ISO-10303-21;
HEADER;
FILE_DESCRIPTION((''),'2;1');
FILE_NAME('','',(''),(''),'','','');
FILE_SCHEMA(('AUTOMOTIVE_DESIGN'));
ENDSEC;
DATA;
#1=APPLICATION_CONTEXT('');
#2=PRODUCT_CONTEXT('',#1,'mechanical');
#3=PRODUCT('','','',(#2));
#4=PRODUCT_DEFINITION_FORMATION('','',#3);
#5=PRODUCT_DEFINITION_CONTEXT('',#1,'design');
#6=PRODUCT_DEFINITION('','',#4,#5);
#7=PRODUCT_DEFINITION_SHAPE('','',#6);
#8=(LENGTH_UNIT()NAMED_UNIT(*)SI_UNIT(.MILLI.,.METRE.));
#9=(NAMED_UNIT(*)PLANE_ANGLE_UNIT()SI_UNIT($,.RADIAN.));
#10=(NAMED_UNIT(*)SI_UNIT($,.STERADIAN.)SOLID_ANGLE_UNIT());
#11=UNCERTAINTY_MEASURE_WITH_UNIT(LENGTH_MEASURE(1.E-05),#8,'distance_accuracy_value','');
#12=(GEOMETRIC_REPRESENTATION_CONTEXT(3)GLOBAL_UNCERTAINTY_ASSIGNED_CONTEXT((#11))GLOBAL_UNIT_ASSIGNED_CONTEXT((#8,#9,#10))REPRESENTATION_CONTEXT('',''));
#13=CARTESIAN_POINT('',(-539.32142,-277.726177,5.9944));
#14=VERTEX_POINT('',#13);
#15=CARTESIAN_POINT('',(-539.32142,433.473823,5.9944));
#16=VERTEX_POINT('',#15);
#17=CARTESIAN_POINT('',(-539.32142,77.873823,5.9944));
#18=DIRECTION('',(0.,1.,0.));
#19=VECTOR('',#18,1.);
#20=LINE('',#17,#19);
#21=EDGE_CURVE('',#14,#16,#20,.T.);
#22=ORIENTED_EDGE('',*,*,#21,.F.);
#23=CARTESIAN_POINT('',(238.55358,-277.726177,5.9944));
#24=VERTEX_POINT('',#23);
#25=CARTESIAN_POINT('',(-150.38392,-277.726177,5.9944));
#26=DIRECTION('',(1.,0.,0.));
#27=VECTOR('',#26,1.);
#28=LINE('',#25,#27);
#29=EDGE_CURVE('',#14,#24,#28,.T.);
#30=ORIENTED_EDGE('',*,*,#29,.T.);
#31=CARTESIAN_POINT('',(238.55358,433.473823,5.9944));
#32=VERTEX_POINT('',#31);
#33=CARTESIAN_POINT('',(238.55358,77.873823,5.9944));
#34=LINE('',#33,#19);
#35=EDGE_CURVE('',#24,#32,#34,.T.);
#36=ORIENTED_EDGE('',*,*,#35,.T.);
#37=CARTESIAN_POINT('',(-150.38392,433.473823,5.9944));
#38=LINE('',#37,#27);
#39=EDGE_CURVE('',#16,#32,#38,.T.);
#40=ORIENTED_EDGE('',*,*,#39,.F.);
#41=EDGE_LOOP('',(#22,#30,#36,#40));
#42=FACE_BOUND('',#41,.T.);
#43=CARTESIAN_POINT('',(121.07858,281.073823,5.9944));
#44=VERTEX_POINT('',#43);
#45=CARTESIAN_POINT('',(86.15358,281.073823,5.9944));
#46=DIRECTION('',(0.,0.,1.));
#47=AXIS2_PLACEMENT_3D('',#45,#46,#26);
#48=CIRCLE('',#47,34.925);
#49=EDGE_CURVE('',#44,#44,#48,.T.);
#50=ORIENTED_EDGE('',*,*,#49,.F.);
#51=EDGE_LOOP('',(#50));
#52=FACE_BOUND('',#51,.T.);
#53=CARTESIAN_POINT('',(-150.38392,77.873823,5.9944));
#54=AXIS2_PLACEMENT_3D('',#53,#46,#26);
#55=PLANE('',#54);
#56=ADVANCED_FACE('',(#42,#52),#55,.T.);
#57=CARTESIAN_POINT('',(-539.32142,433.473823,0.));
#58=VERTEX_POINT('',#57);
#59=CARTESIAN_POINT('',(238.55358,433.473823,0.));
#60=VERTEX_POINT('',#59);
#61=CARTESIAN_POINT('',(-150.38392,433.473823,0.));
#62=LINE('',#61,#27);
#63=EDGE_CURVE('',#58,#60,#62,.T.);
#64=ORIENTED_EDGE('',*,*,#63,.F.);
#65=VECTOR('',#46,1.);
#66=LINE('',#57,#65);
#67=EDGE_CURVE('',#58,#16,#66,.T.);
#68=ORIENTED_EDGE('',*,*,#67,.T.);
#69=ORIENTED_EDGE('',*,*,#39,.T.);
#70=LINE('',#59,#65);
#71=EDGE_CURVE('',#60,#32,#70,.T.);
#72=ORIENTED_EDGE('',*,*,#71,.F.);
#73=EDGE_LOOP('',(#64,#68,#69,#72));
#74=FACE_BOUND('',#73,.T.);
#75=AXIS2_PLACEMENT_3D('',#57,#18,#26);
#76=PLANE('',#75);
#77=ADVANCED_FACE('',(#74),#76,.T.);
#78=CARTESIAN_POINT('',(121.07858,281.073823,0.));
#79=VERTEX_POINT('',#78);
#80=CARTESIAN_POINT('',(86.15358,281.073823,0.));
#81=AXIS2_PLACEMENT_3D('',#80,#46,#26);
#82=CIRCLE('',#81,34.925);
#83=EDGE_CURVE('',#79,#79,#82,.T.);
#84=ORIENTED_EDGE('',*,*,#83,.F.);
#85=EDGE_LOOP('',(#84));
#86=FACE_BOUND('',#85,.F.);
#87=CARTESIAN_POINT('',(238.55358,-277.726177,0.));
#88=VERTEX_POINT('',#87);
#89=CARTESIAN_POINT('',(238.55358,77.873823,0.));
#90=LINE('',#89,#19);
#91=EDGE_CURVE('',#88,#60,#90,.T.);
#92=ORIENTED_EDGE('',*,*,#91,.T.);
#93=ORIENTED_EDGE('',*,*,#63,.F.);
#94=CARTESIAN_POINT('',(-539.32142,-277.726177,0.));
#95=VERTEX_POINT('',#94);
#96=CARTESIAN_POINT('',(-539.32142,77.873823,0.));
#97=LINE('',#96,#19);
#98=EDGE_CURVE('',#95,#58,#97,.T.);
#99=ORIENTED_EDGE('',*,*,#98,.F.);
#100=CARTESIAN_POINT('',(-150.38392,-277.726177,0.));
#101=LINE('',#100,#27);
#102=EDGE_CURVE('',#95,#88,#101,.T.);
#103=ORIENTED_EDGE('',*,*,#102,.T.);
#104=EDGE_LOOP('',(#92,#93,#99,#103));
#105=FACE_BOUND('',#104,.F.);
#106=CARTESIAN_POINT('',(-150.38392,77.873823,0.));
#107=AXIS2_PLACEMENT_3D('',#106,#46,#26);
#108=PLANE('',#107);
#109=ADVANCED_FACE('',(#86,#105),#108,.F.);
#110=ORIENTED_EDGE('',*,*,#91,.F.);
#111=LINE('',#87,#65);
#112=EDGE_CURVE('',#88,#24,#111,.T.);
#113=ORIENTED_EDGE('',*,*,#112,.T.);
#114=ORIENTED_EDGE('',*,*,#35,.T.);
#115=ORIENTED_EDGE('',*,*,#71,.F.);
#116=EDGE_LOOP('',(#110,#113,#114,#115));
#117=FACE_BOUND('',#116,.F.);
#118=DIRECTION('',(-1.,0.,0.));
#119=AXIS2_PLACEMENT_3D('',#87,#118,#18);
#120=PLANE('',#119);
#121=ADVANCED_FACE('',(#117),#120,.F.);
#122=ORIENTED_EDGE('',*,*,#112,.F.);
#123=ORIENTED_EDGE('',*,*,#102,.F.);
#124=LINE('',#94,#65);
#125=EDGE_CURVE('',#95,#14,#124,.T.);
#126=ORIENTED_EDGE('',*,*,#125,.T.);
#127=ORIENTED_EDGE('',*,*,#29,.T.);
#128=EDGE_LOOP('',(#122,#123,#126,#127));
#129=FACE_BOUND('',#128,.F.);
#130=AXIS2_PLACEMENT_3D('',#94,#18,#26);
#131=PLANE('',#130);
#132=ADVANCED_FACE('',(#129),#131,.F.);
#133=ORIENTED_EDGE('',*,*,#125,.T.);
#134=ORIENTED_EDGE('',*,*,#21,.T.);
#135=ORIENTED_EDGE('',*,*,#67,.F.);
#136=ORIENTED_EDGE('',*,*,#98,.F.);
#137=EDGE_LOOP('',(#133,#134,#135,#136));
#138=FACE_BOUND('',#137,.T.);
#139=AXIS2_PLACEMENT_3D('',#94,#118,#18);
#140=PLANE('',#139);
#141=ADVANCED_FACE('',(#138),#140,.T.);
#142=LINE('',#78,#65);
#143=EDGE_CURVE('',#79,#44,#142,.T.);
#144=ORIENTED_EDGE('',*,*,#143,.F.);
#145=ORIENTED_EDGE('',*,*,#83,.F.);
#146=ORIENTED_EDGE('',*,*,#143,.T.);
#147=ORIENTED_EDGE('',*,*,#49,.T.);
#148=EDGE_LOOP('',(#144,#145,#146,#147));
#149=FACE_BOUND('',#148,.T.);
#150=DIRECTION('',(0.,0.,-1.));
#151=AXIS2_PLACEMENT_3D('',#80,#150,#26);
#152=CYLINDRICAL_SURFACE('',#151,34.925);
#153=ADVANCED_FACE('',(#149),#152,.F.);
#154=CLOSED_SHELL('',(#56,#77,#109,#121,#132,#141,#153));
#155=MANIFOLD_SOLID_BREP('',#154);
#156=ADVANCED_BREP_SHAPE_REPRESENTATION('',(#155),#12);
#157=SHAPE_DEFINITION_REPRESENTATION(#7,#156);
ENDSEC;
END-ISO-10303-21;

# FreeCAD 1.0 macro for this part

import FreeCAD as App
import Part
import Sketcher

V = App.Vector
Q = App.Units.Quantity


def add_polygon(sketch, points):
    """Adds a closed chain of lines whose ends are joined by coincident constraints."""
    first, n = sketch.GeometryCount, len(points)
    for a, b in zip(points, points[1:] + points[:1]):
        sketch.addGeometry(Part.LineSegment(App.Vector(*a, 0), App.Vector(*b, 0)), False)
    for i in range(n):
        sketch.addConstraint(Sketcher.Constraint("Coincident", first + i, 2, first + (i + 1) % n, 1))

doc = App.newDocument("Part")
params = doc.addObject("Spreadsheet::Sheet", "Params")
for row, (alias, value) in enumerate([
    ("sketch1_diameter", "2.75 in"),
    ("sketch1_height", "28 in"),
    ("sketch1_width", "30.625 in"),
    ("pad1_length", "0.236 in"),
], start=1):
    params.set(f"A{row}", alias)
    params.set(f"B{row}", "=" + value)
    params.setAlias(f"B{row}", alias)

body = doc.addObject("PartDesign::Body", "Body")

sketch1 = body.newObject("Sketcher::SketchObject", "Sketch")
sketch1.AttachmentSupport = (doc.getObject("XY_Plane"), [""])
sketch1.MapMode = "FlatFace"
add_polygon(sketch1, [(-539, 433), (-539, -278), (239, -278), (239, 433)])
sketch1.addGeometry(Part.Circle(V(86, 281, 0), V(0, 0, 1), 35), False)
sketch1.addConstraint([
    Sketcher.Constraint("Vertical", 0),
    Sketcher.Constraint("Horizontal", 1),
    Sketcher.Constraint("Vertical", 2),
    Sketcher.Constraint("Horizontal", 3),
    Sketcher.Constraint("Diameter", 4, Q("2.75 in")),
    Sketcher.Constraint("DistanceY", 0, 2, 0, 1, Q("28 in")),
    Sketcher.Constraint("DistanceY", 0, 2, 4, 3, Q("22 in")),
    Sketcher.Constraint("DistanceX", 4, 3, 1, 2, Q("6 in")),
    Sketcher.Constraint("DistanceX", 1, 1, 1, 2, Q("30.625 in")),
    Sketcher.Constraint("DistanceX", -1, 1, 4, 3, 86.15358),
    Sketcher.Constraint("DistanceY", -1, 1, 4, 3, 281.073823),
])
sketch1.setExpression("Constraints[8]", "Params.sketch1_diameter")
sketch1.setExpression("Constraints[9]", "Params.sketch1_height")
sketch1.setExpression("Constraints[12]", "Params.sketch1_width")
pad1 = body.newObject("PartDesign::Pad", "Pad")
pad1.Profile = sketch1
pad1.setExpression("Length", "Params.pad1_length")

doc.recompute()
